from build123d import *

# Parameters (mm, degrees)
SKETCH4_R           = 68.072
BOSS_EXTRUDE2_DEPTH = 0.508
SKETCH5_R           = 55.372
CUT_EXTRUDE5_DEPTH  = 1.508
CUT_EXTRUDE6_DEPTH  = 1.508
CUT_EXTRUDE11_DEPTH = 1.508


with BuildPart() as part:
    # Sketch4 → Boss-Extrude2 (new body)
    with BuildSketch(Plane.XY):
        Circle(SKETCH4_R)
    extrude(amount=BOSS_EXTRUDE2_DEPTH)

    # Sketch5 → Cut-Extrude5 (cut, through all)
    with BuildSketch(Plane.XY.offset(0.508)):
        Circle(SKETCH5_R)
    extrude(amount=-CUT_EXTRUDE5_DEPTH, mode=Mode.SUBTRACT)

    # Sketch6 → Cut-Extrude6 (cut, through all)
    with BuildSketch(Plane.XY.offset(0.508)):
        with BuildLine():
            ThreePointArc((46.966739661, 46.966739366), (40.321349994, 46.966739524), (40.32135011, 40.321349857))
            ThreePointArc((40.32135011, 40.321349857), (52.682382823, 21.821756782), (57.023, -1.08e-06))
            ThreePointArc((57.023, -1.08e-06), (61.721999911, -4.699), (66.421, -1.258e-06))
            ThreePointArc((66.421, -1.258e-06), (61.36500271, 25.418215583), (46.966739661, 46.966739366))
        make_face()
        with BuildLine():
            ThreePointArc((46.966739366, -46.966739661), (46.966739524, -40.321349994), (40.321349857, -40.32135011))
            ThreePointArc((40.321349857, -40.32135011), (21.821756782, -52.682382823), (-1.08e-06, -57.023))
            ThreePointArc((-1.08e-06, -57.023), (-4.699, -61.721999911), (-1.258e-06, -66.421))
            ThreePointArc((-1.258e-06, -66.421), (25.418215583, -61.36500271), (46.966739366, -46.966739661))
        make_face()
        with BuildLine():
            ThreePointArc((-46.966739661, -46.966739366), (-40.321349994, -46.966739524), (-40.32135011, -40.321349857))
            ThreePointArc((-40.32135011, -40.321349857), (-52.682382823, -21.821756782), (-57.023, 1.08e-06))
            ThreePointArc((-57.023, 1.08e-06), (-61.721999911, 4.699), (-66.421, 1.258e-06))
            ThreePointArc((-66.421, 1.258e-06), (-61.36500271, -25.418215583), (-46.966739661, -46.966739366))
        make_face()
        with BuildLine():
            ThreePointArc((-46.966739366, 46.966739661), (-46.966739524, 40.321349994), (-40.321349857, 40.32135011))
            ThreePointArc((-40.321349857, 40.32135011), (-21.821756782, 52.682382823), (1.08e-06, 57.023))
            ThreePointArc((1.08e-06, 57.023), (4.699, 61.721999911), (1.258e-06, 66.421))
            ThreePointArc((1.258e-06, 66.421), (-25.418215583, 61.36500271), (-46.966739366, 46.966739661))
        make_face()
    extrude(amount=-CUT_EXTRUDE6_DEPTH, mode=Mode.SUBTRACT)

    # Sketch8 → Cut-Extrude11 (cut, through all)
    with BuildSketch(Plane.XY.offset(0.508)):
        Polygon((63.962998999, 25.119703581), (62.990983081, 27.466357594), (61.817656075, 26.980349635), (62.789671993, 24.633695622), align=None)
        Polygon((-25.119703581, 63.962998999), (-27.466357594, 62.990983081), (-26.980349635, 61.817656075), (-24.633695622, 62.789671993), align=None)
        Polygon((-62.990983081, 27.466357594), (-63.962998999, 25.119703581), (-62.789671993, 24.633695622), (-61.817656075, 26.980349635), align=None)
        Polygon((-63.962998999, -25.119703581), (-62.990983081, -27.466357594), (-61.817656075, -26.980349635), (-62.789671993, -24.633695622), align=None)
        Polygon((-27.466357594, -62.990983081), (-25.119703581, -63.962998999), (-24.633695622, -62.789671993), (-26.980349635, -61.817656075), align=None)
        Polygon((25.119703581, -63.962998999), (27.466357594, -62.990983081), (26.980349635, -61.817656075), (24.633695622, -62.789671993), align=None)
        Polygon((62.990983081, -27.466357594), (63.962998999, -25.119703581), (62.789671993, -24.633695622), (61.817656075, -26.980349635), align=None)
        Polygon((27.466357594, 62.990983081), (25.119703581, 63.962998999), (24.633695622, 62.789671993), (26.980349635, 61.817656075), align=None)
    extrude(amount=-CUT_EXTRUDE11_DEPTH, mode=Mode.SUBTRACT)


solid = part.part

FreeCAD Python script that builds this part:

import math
import FreeCAD as App
import Part
import Sketcher
from FreeCAD import Vector
Q = App.Units.Quantity


def add_polygon(sketch, points):
    """Adds a closed chain of lines whose ends are joined by coincident constraints."""
    first, n = sketch.GeometryCount, len(points)
    for a, b in zip(points, points[1:] + points[:1]):
        sketch.addGeometry(Part.LineSegment(App.Vector(*a, 0), App.Vector(*b, 0)), False)
    for i in range(n):
        sketch.addConstraint(Sketcher.Constraint("Coincident", first + i, 2, first + (i + 1) % n, 1))

doc = App.newDocument("Part")
body = doc.addObject("PartDesign::Body", "Body")

sketch1 = doc.addObject("Sketcher::SketchObject", "Sketch")
body.addObject(sketch1)
sketch1.AttachmentSupport = (doc.XY_Plane, [""])
sketch1.MapMode = "FlatFace"
sketch1.addGeometry(Part.Circle(Vector(0, 0, 0), Vector(0, 0, 1), 68), False)
sketch1.addConstraint(Sketcher.Constraint("Coincident", 0, 3, -1, 1))
sketch1.addConstraint(Sketcher.Constraint("Diameter", 0, Q("5.36 in")))
pad1 = doc.addObject("PartDesign::Pad", "Pad")
body.addObject(pad1)
pad1.Profile = sketch1
pad1.Length = Q("0.02 in")

sketch2 = doc.addObject("Sketcher::SketchObject", "Sketch001")
body.addObject(sketch2)
sketch2.AttachmentSupport = (doc.XY_Plane, [""])
sketch2.MapMode = "FlatFace"
sketch2.AttachmentOffset = App.Placement(Vector(0, 0, 0.02 * 25.4), App.Rotation())
sketch2.addGeometry(Part.Circle(Vector(0, 0, 0), Vector(0, 0, 1), 55), False)
sketch2.addConstraint(Sketcher.Constraint("Coincident", 0, 3, -1, 1))
sketch2.addConstraint(Sketcher.Constraint("Diameter", 0, Q("4.36 in")))
pocket1 = doc.addObject("PartDesign::Pocket", "Pocket")
body.addObject(pocket1)
pocket1.Profile = sketch2
pocket1.Type = "ThroughAll"

sketch3 = doc.addObject("Sketcher::SketchObject", "Sketch002")
body.addObject(sketch3)
sketch3.AttachmentSupport = (doc.XY_Plane, [""])
sketch3.MapMode = "FlatFace"
sketch3.AttachmentOffset = App.Placement(Vector(0, 0, 0.02 * 25.4), App.Rotation())
sketch3.addGeometry(Part.ArcOfCircle(Part.Circle(Vector(43.6, 43.6, 0), Vector(0, 0, 1), 4.7), math.radians(45), math.radians(225)), False)
sketch3.addGeometry(Part.ArcOfCircle(Part.Circle(Vector(0, 0, 0), Vector(0, 0, 1), 57), math.radians(0), math.radians(45)), False)
sketch3.addGeometry(Part.ArcOfCircle(Part.Circle(Vector(61.7, 0, 0), Vector(0, 0, 1), 4.7), math.radians(-180), math.radians(0)), False)
sketch3.addGeometry(Part.ArcOfCircle(Part.Circle(Vector(0, 0, 0), Vector(0, 0, 1), 66.4), math.radians(0), math.radians(45)), False)
sketch3.addGeometry(Part.ArcOfCircle(Part.Circle(Vector(43.6, -43.6, 0), Vector(0, 0, 1), 4.7), math.radians(-45), math.radians(135)), False)
sketch3.addGeometry(Part.ArcOfCircle(Part.Circle(Vector(0, 0, 0), Vector(0, 0, 1), 57), math.radians(-90), math.radians(-45)), False)
sketch3.addGeometry(Part.ArcOfCircle(Part.Circle(Vector(0, -61.7, 0), Vector(0, 0, 1), 4.7), math.radians(90), math.radians(270)), False)
sketch3.addGeometry(Part.ArcOfCircle(Part.Circle(Vector(0, 0, 0), Vector(0, 0, 1), 66.4), math.radians(-90), math.radians(-45)), False)
sketch3.addGeometry(Part.ArcOfCircle(Part.Circle(Vector(-43.6, -43.6, 0), Vector(0, 0, 1), 4.7), math.radians(-135), math.radians(45)), False)
sketch3.addGeometry(Part.ArcOfCircle(Part.Circle(Vector(0, 0, 0), Vector(0, 0, 1), 57), math.radians(180), math.radians(225)), False)
sketch3.addGeometry(Part.ArcOfCircle(Part.Circle(Vector(-61.7, 0, 0), Vector(0, 0, 1), 4.7), math.radians(0), math.radians(180)), False)
sketch3.addGeometry(Part.ArcOfCircle(Part.Circle(Vector(0, 0, 0), Vector(0, 0, 1), 66.4), math.radians(180), math.radians(225)), False)
sketch3.addGeometry(Part.ArcOfCircle(Part.Circle(Vector(-43.6, 43.6, 0), Vector(0, 0, 1), 4.7), math.radians(135), math.radians(315)), False)
sketch3.addGeometry(Part.ArcOfCircle(Part.Circle(Vector(0, 0, 0), Vector(0, 0, 1), 57), math.radians(90), math.radians(135)), False)
sketch3.addGeometry(Part.ArcOfCircle(Part.Circle(Vector(0, 61.7, 0), Vector(0, 0, 1), 4.7), math.radians(-90), math.radians(90)), False)
sketch3.addGeometry(Part.ArcOfCircle(Part.Circle(Vector(0, 0, 0), Vector(0, 0, 1), 66.4), math.radians(90), math.radians(135)), False)
sketch3.addConstraint(Sketcher.Constraint("Tangent", 0, 2, 1, 2))
sketch3.addConstraint(Sketcher.Constraint("Tangent", 1, 1, 2, 1))
sketch3.addConstraint(Sketcher.Constraint("Tangent", 2, 2, 3, 1))
sketch3.addConstraint(Sketcher.Constraint("Tangent", 3, 2, 0, 1))
sketch3.addConstraint(Sketcher.Constraint("Tangent", 4, 2, 5, 2))
sketch3.addConstraint(Sketcher.Constraint("Tangent", 5, 1, 6, 1))
sketch3.addConstraint(Sketcher.Constraint("Tangent", 6, 2, 7, 1))
sketch3.addConstraint(Sketcher.Constraint("Tangent", 7, 2, 4, 1))
sketch3.addConstraint(Sketcher.Constraint("Tangent", 8, 2, 9, 2))
sketch3.addConstraint(Sketcher.Constraint("Tangent", 9, 1, 10, 1))
sketch3.addConstraint(Sketcher.Constraint("Tangent", 10, 2, 11, 1))
sketch3.addConstraint(Sketcher.Constraint("Tangent", 11, 2, 8, 1))
sketch3.addConstraint(Sketcher.Constraint("Tangent", 12, 2, 13, 2))
sketch3.addConstraint(Sketcher.Constraint("Tangent", 13, 1, 14, 1))
sketch3.addConstraint(Sketcher.Constraint("Tangent", 14, 2, 15, 1))
sketch3.addConstraint(Sketcher.Constraint("Tangent", 15, 2, 12, 1))
sketch3.addConstraint(Sketcher.Constraint("Coincident", 1, 3, -1, 1))
sketch3.addConstraint(Sketcher.Constraint("Coincident", 3, 3, -1, 1))
sketch3.addConstraint(Sketcher.Constraint("Coincident", 5, 3, -1, 1))
sketch3.addConstraint(Sketcher.Constraint("Coincident", 7, 3, -1, 1))
sketch3.addConstraint(Sketcher.Constraint("Coincident", 9, 3, -1, 1))
sketch3.addConstraint(Sketcher.Constraint("Coincident", 11, 3, -1, 1))
sketch3.addConstraint(Sketcher.Constraint("Coincident", 13, 3, -1, 1))
sketch3.addConstraint(Sketcher.Constraint("Coincident", 15, 3, -1, 1))
sketch3.addConstraint(Sketcher.Constraint("Equal", 2, 4))
sketch3.addConstraint(Sketcher.Constraint("Equal", 1, 5))
sketch3.addConstraint(Sketcher.Constraint("Equal", 6, 8))
sketch3.addConstraint(Sketcher.Constraint("Equal", 5, 9))
sketch3.addConstraint(Sketcher.Constraint("Equal", 10, 12))
sketch3.addConstraint(Sketcher.Constraint("Equal", 9, 13))
sketch3.addConstraint(Sketcher.Constraint("PointOnObject", 2, 3, -1))
sketch3.addConstraint(Sketcher.Constraint("PointOnObject", 6, 3, -2))
sketch3.addConstraint(Sketcher.Constraint("PointOnObject", 10, 3, -1))
sketch3.addConstraint(Sketcher.Constraint("PointOnObject", 14, 3, -2))
sketch3.addConstraint(Sketcher.Constraint("Horizontal", 4, 3, 8, 3))
sketch3.addConstraint(Sketcher.Constraint("Horizontal", 0, 3, 12, 3))
sketch3.addConstraint(Sketcher.Constraint("Vertical", 0, 3, 4, 3))
sketch3.addConstraint(Sketcher.Constraint("Radius", 0, Q("0.185 in")))
sketch3.addConstraint(Sketcher.Constraint("Radius", 1, Q("2.245 in")))
sketch3.addConstraint(Sketcher.Constraint("DistanceX", -1, 1, 0, 2, 40.32135))
pocket2 = doc.addObject("PartDesign::Pocket", "Pocket001")
body.addObject(pocket2)
pocket2.Profile = sketch3
pocket2.Type = "ThroughAll"

sketch4 = doc.addObject("Sketcher::SketchObject", "Sketch003")
body.addObject(sketch4)
sketch4.AttachmentSupport = (doc.XY_Plane, [""])
sketch4.MapMode = "FlatFace"
sketch4.AttachmentOffset = App.Placement(Vector(0, 0, 0.02 * 25.4), App.Rotation())
add_polygon(sketch4, [(64, 25.1), (63, 27.5), (61.8, 27), (62.8, 24.6)])
add_polygon(sketch4, [(-25.1, 64), (-27.5, 63), (-27, 61.8), (-24.6, 62.8)])
add_polygon(sketch4, [(-63, 27.5), (-64, 25.1), (-62.8, 24.6), (-61.8, 27)])
add_polygon(sketch4, [(-64, -25.1), (-63, -27.5), (-61.8, -27), (-62.8, -24.6)])
add_polygon(sketch4, [(-27.5, -63), (-25.1, -64), (-24.6, -62.8), (-27, -61.8)])
add_polygon(sketch4, [(25.1, -64), (27.5, -63), (27, -61.8), (24.6, -62.8)])
add_polygon(sketch4, [(63, -27.5), (64, -25.1), (62.8, -24.6), (61.8, -27)])
add_polygon(sketch4, [(27.5, 63), (25.1, 64), (24.6, 62.8), (27, 61.8)])
sketch4.addConstraint(Sketcher.Constraint("Symmetric", 0, 2, 12, 2, -1, 1))
sketch4.addConstraint(Sketcher.Constraint("Symmetric", 1, 2, 13, 2, -1, 1))
sketch4.addConstraint(Sketcher.Constraint("Symmetric", 2, 2, 14, 2, -1, 1))
sketch4.addConstraint(Sketcher.Constraint("Symmetric", 3, 2, 15, 2, -1, 1))
sketch4.addConstraint(Sketcher.Constraint("Symmetric", 4, 2, 20, 2, -1, 1))
sketch4.addConstraint(Sketcher.Constraint("Symmetric", 5, 2, 21, 2, -1, 1))
sketch4.addConstraint(Sketcher.Constraint("Symmetric", 6, 2, 22, 2, -1, 1))
sketch4.addConstraint(Sketcher.Constraint("Symmetric", 7, 2, 23, 2, -1, 1))
sketch4.addConstraint(Sketcher.Constraint("Symmetric", 8, 2, 24, 2, -1, 1))
sketch4.addConstraint(Sketcher.Constraint("Symmetric", 9, 2, 25, 2, -1, 1))
sketch4.addConstraint(Sketcher.Constraint("Symmetric", 10, 2, 26, 2, -1, 1))
sketch4.addConstraint(Sketcher.Constraint("Symmetric", 11, 2, 27, 2, -1, 1))
sketch4.addConstraint(Sketcher.Constraint("Symmetric", 16, 2, 28, 2, -1, 1))
sketch4.addConstraint(Sketcher.Constraint("Symmetric", 17, 2, 29, 2, -1, 1))
sketch4.addConstraint(Sketcher.Constraint("Symmetric", 18, 2, 30, 2, -1, 1))
sketch4.addConstraint(Sketcher.Constraint("Symmetric", 19, 2, 31, 2, -1, 1))
sketch4.addConstraint(Sketcher.Constraint("Symmetric", 3, 2, 8, 2, -2))
sketch4.addConstraint(Sketcher.Constraint("Symmetric", 2, 2, 9, 2, -2))
sketch4.addConstraint(Sketcher.Constraint("Symmetric", 1, 2, 10, 2, -2))
sketch4.addConstraint(Sketcher.Constraint("Symmetric", 0, 2, 11, 2, -2))
sketch4.addConstraint(Sketcher.Constraint("Symmetric", 19, 2, 20, 2, -2))
sketch4.addConstraint(Sketcher.Constraint("Symmetric", 18, 2, 21, 2, -2))
sketch4.addConstraint(Sketcher.Constraint("Symmetric", 17, 2, 22, 2, -2))
sketch4.addConstraint(Sketcher.Constraint("Symmetric", 16, 2, 23, 2, -2))
sketch4.addConstraint(Sketcher.Constraint("Perpendicular", 0, 1))
sketch4.addConstraint(Sketcher.Constraint("Perpendicular", 1, 2))
sketch4.addConstraint(Sketcher.Constraint("Perpendicular", 2, 3))
sketch4.addConstraint(Sketcher.Constraint("Parallel", 3, 4))
sketch4.addConstraint(Sketcher.Constraint("Perpendicular", 4, 5))
sketch4.addConstraint(Sketcher.Constraint("Perpendicular", 5, 6))
sketch4.addConstraint(Sketcher.Constraint("Perpendicular", 6, 7))
sketch4.addConstraint(Sketcher.Constraint("Equal", 2, 4))
sketch4.addConstraint(Sketcher.Constraint("Equal", 3, 5))
sketch4.addConstraint(Sketcher.Constraint("Distance", 0, Q("0.1 in")))
sketch4.addConstraint(Sketcher.Constraint("Angle", 0, Q("112.5 deg")))
sketch4.addConstraint(Sketcher.Constraint("Distance", 1, Q("0.05 in")))
sketch4.addConstraint(Sketcher.Constraint("DistanceX", -1, 1, 3, 2, 63.962999))
sketch4.addConstraint(Sketcher.Constraint("DistanceY", -1, 1, 7, 2, 63.962999))
sketch4.addConstraint(Sketcher.Constraint("DistanceY", 0, 2, 5, 2, 34.351298))
sketch4.addConstraint(Sketcher.Constraint("DistanceX", 10, 2, 4, 2, 34.351298))
pocket3 = doc.addObject("PartDesign::Pocket", "Pocket002")
body.addObject(pocket3)
pocket3.Profile = sketch4
pocket3.Type = "ThroughAll"

doc.recompute()
